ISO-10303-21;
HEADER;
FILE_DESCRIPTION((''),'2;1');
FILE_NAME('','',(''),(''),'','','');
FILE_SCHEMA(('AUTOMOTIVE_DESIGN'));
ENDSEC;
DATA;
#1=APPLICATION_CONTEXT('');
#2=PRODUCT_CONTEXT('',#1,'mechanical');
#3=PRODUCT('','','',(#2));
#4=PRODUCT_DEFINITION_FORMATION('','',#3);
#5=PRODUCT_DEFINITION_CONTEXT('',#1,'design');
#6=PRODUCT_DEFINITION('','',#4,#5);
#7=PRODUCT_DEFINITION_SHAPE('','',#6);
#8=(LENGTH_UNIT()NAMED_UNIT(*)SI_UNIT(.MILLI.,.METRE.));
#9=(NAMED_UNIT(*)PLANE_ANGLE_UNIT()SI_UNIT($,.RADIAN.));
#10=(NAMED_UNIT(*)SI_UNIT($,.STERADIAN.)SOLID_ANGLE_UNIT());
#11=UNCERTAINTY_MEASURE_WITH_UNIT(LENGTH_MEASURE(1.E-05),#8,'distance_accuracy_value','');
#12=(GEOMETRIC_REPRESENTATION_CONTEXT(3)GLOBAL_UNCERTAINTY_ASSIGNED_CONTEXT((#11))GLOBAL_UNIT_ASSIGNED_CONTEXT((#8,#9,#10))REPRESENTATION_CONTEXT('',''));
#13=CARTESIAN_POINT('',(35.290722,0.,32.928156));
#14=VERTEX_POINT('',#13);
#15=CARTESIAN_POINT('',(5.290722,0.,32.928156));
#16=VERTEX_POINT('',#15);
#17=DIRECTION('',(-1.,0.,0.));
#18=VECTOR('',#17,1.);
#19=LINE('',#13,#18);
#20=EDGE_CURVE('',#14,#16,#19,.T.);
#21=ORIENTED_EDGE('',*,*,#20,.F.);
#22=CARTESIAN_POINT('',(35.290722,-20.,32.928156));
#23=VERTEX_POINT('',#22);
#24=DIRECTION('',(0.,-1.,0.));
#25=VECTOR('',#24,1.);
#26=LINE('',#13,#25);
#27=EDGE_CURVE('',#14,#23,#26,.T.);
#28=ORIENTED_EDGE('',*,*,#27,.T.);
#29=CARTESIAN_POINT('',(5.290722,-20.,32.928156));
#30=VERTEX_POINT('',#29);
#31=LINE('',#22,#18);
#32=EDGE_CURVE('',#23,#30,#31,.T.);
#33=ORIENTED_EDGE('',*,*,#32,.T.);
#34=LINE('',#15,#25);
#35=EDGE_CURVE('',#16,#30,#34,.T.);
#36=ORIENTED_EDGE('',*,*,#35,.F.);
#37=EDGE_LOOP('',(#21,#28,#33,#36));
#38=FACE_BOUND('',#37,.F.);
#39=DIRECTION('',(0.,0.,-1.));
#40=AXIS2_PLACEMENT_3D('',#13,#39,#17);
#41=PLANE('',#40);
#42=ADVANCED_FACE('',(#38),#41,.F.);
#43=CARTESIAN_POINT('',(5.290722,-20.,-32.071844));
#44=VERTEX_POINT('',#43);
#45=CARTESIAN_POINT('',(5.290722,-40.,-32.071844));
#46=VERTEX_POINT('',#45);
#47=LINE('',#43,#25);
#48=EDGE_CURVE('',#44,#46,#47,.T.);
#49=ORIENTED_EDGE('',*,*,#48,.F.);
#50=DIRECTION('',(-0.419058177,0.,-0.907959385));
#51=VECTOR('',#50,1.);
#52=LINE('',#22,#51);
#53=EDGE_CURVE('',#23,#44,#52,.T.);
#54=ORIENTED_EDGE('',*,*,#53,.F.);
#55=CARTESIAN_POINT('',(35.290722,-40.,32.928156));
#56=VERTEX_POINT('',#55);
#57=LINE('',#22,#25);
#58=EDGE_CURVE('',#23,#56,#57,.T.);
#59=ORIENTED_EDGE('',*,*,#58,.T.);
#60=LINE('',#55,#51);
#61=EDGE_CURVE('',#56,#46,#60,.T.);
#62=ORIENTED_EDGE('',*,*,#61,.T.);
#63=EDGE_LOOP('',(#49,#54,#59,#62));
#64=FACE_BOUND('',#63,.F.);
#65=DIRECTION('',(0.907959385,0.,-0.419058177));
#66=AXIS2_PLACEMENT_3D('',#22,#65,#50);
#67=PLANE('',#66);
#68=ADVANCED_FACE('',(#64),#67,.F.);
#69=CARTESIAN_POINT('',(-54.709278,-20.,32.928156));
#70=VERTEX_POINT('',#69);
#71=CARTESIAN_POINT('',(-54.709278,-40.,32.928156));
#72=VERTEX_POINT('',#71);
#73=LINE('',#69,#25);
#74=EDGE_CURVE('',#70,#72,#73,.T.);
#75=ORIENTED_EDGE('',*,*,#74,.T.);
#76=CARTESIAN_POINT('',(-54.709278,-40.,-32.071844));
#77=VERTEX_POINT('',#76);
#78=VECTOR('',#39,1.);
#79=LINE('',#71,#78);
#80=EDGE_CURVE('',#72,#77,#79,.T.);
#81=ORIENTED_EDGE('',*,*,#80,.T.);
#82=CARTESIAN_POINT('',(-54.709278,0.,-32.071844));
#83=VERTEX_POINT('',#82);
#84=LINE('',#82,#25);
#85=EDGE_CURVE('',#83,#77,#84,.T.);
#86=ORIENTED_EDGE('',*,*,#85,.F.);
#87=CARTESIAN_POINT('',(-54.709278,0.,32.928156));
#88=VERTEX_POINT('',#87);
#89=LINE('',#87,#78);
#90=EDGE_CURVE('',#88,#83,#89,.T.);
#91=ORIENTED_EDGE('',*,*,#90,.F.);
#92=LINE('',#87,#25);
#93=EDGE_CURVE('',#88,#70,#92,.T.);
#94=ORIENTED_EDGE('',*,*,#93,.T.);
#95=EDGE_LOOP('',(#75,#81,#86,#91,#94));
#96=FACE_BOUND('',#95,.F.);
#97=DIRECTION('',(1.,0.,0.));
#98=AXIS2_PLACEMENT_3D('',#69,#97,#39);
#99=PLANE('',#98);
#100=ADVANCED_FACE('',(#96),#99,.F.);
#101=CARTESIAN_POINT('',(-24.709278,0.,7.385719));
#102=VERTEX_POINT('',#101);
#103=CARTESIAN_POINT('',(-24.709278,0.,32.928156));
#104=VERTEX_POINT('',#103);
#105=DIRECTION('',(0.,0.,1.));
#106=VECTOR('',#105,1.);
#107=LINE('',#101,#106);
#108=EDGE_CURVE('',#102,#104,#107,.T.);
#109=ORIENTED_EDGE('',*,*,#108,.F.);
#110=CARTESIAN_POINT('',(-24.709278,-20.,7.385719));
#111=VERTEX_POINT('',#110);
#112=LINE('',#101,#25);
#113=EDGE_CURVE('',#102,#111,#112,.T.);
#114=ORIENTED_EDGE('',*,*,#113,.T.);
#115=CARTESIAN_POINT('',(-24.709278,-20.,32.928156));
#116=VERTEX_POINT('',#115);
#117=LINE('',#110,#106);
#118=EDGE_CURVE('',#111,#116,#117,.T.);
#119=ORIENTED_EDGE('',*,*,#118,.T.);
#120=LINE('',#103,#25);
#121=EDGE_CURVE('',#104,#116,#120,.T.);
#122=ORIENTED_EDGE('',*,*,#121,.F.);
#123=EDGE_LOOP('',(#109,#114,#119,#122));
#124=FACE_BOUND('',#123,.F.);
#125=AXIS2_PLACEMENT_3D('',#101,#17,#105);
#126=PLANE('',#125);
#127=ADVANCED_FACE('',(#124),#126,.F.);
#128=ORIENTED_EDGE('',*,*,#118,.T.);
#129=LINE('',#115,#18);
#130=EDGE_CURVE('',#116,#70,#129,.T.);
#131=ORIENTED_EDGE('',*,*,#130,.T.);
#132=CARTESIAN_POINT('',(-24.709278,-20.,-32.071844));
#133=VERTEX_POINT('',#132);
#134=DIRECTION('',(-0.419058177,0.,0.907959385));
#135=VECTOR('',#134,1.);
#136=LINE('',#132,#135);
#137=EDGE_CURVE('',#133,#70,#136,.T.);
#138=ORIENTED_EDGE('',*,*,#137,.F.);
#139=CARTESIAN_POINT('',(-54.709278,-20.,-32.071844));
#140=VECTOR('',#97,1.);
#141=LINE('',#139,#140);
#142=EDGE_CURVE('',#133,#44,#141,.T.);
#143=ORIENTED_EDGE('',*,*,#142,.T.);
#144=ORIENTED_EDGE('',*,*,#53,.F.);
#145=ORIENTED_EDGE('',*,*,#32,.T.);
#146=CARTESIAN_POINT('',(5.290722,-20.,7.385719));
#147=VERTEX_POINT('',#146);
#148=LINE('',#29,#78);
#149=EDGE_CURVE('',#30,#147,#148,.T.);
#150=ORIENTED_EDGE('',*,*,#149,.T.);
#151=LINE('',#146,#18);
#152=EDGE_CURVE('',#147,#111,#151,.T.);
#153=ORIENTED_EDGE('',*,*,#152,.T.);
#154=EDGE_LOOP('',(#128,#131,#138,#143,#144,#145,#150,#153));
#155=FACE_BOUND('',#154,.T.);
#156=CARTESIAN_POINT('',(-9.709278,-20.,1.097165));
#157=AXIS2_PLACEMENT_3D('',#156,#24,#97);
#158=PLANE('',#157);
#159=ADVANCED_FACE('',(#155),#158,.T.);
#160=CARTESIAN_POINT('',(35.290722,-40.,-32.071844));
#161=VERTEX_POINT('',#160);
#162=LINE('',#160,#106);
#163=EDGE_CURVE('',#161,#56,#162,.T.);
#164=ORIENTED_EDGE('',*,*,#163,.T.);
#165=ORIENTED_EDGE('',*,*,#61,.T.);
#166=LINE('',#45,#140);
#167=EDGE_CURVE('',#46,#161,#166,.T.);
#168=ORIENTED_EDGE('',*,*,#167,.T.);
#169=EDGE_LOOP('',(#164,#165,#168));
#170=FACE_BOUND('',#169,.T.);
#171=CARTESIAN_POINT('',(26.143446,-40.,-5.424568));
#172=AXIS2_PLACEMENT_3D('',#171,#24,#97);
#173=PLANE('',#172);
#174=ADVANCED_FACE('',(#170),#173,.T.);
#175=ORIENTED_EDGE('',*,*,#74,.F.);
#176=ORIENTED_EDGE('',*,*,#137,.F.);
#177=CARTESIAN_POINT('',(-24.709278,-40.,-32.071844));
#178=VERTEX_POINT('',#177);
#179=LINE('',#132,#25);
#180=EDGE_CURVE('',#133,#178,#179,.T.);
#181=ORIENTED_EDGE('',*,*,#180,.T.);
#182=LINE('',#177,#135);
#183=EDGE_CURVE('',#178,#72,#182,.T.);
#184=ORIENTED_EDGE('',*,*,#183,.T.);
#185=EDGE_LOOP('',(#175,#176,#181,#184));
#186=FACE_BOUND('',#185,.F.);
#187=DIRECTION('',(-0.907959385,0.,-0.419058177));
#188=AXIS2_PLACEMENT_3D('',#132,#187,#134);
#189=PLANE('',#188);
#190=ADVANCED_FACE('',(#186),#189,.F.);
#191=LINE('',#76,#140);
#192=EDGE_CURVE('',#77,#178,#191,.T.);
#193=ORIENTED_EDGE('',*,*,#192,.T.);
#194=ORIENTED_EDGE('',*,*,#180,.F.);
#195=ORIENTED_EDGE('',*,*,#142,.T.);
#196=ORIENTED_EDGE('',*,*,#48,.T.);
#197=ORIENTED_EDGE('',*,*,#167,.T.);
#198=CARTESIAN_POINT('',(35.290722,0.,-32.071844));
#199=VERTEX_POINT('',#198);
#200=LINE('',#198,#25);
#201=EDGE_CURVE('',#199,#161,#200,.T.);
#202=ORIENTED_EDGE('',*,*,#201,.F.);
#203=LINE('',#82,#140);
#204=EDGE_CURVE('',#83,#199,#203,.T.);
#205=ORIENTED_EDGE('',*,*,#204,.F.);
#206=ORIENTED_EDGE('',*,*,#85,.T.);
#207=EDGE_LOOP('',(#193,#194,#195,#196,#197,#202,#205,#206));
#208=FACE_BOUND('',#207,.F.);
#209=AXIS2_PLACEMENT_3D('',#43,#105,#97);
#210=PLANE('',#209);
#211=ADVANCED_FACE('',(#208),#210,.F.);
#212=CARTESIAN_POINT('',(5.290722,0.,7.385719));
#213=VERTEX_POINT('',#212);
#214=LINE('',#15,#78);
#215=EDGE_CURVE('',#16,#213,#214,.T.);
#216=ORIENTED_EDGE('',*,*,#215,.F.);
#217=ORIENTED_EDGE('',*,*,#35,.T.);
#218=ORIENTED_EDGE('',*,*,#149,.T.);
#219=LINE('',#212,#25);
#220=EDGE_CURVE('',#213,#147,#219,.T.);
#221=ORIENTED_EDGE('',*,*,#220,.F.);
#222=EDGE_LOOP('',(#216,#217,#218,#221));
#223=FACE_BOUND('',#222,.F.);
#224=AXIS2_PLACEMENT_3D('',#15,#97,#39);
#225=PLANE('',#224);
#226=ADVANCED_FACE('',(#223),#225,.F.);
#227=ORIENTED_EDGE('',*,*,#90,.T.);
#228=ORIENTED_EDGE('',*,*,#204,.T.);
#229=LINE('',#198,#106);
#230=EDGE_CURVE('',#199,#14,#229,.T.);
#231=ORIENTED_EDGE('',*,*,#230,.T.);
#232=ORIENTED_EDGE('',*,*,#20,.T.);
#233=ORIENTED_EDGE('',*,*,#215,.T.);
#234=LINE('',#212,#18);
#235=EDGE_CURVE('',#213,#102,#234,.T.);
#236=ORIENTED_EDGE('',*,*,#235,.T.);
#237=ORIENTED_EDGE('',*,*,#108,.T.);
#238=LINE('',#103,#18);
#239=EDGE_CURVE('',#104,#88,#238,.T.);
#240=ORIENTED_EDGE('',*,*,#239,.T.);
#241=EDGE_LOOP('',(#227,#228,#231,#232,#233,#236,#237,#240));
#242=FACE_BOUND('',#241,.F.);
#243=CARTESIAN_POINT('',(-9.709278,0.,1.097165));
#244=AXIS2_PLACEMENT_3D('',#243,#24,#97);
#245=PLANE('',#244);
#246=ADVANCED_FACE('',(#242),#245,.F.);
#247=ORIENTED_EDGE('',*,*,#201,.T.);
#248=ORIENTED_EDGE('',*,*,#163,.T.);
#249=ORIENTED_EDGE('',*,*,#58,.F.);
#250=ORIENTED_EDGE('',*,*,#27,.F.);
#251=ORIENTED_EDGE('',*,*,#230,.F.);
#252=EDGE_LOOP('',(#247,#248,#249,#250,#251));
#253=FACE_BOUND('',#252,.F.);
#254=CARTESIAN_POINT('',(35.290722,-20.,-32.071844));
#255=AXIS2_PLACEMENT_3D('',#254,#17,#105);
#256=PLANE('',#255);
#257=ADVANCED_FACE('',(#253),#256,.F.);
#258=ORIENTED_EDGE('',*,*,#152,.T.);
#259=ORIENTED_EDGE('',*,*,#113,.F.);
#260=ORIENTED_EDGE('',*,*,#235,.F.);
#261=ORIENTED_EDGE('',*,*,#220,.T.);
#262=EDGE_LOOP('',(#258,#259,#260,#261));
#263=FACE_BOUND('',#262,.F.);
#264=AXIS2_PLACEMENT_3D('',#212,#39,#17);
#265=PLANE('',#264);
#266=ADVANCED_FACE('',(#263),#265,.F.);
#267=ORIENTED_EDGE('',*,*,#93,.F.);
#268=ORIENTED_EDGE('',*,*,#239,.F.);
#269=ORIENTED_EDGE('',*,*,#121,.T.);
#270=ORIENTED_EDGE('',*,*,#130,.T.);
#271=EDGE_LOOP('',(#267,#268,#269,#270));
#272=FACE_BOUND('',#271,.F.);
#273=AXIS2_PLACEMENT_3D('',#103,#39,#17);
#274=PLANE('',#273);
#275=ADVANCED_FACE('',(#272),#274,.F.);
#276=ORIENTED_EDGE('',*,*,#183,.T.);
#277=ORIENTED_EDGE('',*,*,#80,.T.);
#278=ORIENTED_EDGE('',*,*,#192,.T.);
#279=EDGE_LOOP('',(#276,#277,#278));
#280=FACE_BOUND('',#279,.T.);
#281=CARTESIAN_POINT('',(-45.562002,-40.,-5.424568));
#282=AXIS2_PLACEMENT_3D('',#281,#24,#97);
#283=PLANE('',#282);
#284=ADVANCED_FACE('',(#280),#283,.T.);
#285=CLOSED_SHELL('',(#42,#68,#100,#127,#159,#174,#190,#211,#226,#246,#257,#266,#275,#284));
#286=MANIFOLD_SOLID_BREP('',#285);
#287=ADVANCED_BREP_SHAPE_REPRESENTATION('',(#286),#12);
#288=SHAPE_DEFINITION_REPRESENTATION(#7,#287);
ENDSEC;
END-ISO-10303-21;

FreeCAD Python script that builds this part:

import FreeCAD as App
import Part
import Sketcher

V = App.Vector
Q = App.Units.Quantity

doc = App.newDocument("Part")
body = doc.addObject("PartDesign::Body", "Body")

# Sketch on XZ plane
sketch1 = doc.addObject("Sketcher::SketchObject", "Sketch")
body.addObject(sketch1)
sketch1.AttachmentSupport = (doc.XZ_Plane, [""])
sketch1.MapMode = "FlatFace"
sketch1.addGeometry([
    Part.LineSegment(V(-25, 33, 0), V(-55, 33, 0)),  # 0
    Part.LineSegment(V(-55, 33, 0), V(-55, -32, 0)),  # 1
    Part.LineSegment(V(-55, -32, 0), V(35, -32, 0)),  # 2
    Part.LineSegment(V(35, -32, 0), V(35, 33, 0)),  # 3
    Part.LineSegment(V(35, 33, 0), V(5, 33, 0)),  # 4
    Part.LineSegment(V(5, 33, 0), V(5, 7, 0)),  # 5
    Part.LineSegment(V(5, 7, 0), V(-25, 7, 0)),  # 6
    Part.LineSegment(V(-25, 7, 0), V(-25, 33, 0)),  # 7
], False)
sketch1.addConstraint([
    Sketcher.Constraint("Coincident", 0, 2, 1, 1),
    Sketcher.Constraint("Coincident", 1, 2, 2, 1),
    Sketcher.Constraint("Coincident", 2, 2, 3, 1),
    Sketcher.Constraint("Coincident", 3, 2, 4, 1),
    Sketcher.Constraint("Coincident", 4, 2, 5, 1),
    Sketcher.Constraint("Coincident", 5, 2, 6, 1),
    Sketcher.Constraint("Coincident", 6, 2, 7, 1),
    Sketcher.Constraint("Coincident", 7, 2, 0, 1),
    Sketcher.Constraint("Horizontal", 0),
    Sketcher.Constraint("Vertical", 1),
    Sketcher.Constraint("Horizontal", 2),
    Sketcher.Constraint("Vertical", 3),
    Sketcher.Constraint("Horizontal", 4),
    Sketcher.Constraint("Vertical", 5),
    Sketcher.Constraint("Horizontal", 6),
    Sketcher.Constraint("Vertical", 7),
    Sketcher.Constraint("Horizontal", 0, 2, 3, 2),
    Sketcher.Constraint("Equal", 0, 4),
    Sketcher.Constraint("Equal", 4, 6),
    Sketcher.Constraint("DistanceX", 0, 2, 0, 1, Q("30 mm")),
    Sketcher.Constraint("DistanceY", 1, 2, 1, 1, Q("65 mm")),
    Sketcher.Constraint("DistanceY", 5, 2, 5, 1, Q("25.542437 mm")),
    Sketcher.Constraint("DistanceX", -1, 1, 4, 2, Q("5.290722 mm")),
    Sketcher.Constraint("DistanceY", -1, 1, 5, 2, Q("7.385719 mm")),
])
pad1 = doc.addObject("PartDesign::Pad", "Pad")
body.addObject(pad1)
pad1.Profile = sketch1
pad1.Length = 20

# Sketch on XZ plane
sketch2 = doc.addObject("Sketcher::SketchObject", "Sketch001")
body.addObject(sketch2)
sketch2.AttachmentSupport = (doc.XZ_Plane, [""])
sketch2.MapMode = "FlatFace"
sketch2.AttachmentOffset = App.Placement(V(0, 0, 20), App.Rotation())
sketch2.addGeometry([
    Part.LineSegment(V(-55, 33, 0), V(-55, -32, 0)),
    Part.LineSegment(V(-55, -32, 0), V(-25, -32, 0)),
    Part.LineSegment(V(-25, -32, 0), V(-55, 33, 0)),
], False)
sketch2.addConstraint([
    Sketcher.Constraint("Coincident", 0, 2, 1, 1),
    Sketcher.Constraint("Coincident", 1, 2, 2, 1),
    Sketcher.Constraint("Coincident", 2, 2, 0, 1),
    Sketcher.Constraint("Vertical", 0),
    Sketcher.Constraint("Horizontal", 1),
    Sketcher.Constraint("DistanceX", 1, 1, 1, 2, Q("30 mm")),
    Sketcher.Constraint("DistanceY", 0, 2, 0, 1, Q("65 mm")),
    Sketcher.Constraint("DistanceX", 1, 2, -1, 1, Q("24.709278 mm")),
    Sketcher.Constraint("DistanceY", 0, 2, -1, 1, Q("32.071844 mm")),
])
pad2 = doc.addObject("PartDesign::Pad", "Pad001")
body.addObject(pad2)
pad2.Profile = sketch2
pad2.Length = 20

# Sketch on XZ plane
sketch3 = doc.addObject("Sketcher::SketchObject", "Sketch002")
body.addObject(sketch3)
sketch3.AttachmentSupport = (doc.XZ_Plane, [""])
sketch3.MapMode = "FlatFace"
sketch3.AttachmentOffset = App.Placement(V(0, 0, 20), App.Rotation())
sketch3.addGeometry([
    Part.LineSegment(V(5, -32, 0), V(35, -32, 0)),
    Part.LineSegment(V(35, -32, 0), V(35, 33, 0)),
    Part.LineSegment(V(35, 33, 0), V(5, -32, 0)),
], False)
sketch3.addConstraint([
    Sketcher.Constraint("Coincident", 0, 2, 1, 1),
    Sketcher.Constraint("Coincident", 1, 2, 2, 1),
    Sketcher.Constraint("Coincident", 2, 2, 0, 1),
    Sketcher.Constraint("Horizontal", 0),
    Sketcher.Constraint("Vertical", 1),
    Sketcher.Constraint("DistanceX", 0, 1, 0, 2, Q("30 mm")),
    Sketcher.Constraint("DistanceY", 1, 1, 1, 2, Q("65 mm")),
    Sketcher.Constraint("DistanceX", -1, 1, 2, 2, Q("5.290722 mm")),
    Sketcher.Constraint("DistanceY", 0, 2, -1, 1, Q("32.071844 mm")),
])
pad3 = doc.addObject("PartDesign::Pad", "Pad002")
body.addObject(pad3)
pad3.Profile = sketch3
pad3.Length = 20

doc.recompute()
